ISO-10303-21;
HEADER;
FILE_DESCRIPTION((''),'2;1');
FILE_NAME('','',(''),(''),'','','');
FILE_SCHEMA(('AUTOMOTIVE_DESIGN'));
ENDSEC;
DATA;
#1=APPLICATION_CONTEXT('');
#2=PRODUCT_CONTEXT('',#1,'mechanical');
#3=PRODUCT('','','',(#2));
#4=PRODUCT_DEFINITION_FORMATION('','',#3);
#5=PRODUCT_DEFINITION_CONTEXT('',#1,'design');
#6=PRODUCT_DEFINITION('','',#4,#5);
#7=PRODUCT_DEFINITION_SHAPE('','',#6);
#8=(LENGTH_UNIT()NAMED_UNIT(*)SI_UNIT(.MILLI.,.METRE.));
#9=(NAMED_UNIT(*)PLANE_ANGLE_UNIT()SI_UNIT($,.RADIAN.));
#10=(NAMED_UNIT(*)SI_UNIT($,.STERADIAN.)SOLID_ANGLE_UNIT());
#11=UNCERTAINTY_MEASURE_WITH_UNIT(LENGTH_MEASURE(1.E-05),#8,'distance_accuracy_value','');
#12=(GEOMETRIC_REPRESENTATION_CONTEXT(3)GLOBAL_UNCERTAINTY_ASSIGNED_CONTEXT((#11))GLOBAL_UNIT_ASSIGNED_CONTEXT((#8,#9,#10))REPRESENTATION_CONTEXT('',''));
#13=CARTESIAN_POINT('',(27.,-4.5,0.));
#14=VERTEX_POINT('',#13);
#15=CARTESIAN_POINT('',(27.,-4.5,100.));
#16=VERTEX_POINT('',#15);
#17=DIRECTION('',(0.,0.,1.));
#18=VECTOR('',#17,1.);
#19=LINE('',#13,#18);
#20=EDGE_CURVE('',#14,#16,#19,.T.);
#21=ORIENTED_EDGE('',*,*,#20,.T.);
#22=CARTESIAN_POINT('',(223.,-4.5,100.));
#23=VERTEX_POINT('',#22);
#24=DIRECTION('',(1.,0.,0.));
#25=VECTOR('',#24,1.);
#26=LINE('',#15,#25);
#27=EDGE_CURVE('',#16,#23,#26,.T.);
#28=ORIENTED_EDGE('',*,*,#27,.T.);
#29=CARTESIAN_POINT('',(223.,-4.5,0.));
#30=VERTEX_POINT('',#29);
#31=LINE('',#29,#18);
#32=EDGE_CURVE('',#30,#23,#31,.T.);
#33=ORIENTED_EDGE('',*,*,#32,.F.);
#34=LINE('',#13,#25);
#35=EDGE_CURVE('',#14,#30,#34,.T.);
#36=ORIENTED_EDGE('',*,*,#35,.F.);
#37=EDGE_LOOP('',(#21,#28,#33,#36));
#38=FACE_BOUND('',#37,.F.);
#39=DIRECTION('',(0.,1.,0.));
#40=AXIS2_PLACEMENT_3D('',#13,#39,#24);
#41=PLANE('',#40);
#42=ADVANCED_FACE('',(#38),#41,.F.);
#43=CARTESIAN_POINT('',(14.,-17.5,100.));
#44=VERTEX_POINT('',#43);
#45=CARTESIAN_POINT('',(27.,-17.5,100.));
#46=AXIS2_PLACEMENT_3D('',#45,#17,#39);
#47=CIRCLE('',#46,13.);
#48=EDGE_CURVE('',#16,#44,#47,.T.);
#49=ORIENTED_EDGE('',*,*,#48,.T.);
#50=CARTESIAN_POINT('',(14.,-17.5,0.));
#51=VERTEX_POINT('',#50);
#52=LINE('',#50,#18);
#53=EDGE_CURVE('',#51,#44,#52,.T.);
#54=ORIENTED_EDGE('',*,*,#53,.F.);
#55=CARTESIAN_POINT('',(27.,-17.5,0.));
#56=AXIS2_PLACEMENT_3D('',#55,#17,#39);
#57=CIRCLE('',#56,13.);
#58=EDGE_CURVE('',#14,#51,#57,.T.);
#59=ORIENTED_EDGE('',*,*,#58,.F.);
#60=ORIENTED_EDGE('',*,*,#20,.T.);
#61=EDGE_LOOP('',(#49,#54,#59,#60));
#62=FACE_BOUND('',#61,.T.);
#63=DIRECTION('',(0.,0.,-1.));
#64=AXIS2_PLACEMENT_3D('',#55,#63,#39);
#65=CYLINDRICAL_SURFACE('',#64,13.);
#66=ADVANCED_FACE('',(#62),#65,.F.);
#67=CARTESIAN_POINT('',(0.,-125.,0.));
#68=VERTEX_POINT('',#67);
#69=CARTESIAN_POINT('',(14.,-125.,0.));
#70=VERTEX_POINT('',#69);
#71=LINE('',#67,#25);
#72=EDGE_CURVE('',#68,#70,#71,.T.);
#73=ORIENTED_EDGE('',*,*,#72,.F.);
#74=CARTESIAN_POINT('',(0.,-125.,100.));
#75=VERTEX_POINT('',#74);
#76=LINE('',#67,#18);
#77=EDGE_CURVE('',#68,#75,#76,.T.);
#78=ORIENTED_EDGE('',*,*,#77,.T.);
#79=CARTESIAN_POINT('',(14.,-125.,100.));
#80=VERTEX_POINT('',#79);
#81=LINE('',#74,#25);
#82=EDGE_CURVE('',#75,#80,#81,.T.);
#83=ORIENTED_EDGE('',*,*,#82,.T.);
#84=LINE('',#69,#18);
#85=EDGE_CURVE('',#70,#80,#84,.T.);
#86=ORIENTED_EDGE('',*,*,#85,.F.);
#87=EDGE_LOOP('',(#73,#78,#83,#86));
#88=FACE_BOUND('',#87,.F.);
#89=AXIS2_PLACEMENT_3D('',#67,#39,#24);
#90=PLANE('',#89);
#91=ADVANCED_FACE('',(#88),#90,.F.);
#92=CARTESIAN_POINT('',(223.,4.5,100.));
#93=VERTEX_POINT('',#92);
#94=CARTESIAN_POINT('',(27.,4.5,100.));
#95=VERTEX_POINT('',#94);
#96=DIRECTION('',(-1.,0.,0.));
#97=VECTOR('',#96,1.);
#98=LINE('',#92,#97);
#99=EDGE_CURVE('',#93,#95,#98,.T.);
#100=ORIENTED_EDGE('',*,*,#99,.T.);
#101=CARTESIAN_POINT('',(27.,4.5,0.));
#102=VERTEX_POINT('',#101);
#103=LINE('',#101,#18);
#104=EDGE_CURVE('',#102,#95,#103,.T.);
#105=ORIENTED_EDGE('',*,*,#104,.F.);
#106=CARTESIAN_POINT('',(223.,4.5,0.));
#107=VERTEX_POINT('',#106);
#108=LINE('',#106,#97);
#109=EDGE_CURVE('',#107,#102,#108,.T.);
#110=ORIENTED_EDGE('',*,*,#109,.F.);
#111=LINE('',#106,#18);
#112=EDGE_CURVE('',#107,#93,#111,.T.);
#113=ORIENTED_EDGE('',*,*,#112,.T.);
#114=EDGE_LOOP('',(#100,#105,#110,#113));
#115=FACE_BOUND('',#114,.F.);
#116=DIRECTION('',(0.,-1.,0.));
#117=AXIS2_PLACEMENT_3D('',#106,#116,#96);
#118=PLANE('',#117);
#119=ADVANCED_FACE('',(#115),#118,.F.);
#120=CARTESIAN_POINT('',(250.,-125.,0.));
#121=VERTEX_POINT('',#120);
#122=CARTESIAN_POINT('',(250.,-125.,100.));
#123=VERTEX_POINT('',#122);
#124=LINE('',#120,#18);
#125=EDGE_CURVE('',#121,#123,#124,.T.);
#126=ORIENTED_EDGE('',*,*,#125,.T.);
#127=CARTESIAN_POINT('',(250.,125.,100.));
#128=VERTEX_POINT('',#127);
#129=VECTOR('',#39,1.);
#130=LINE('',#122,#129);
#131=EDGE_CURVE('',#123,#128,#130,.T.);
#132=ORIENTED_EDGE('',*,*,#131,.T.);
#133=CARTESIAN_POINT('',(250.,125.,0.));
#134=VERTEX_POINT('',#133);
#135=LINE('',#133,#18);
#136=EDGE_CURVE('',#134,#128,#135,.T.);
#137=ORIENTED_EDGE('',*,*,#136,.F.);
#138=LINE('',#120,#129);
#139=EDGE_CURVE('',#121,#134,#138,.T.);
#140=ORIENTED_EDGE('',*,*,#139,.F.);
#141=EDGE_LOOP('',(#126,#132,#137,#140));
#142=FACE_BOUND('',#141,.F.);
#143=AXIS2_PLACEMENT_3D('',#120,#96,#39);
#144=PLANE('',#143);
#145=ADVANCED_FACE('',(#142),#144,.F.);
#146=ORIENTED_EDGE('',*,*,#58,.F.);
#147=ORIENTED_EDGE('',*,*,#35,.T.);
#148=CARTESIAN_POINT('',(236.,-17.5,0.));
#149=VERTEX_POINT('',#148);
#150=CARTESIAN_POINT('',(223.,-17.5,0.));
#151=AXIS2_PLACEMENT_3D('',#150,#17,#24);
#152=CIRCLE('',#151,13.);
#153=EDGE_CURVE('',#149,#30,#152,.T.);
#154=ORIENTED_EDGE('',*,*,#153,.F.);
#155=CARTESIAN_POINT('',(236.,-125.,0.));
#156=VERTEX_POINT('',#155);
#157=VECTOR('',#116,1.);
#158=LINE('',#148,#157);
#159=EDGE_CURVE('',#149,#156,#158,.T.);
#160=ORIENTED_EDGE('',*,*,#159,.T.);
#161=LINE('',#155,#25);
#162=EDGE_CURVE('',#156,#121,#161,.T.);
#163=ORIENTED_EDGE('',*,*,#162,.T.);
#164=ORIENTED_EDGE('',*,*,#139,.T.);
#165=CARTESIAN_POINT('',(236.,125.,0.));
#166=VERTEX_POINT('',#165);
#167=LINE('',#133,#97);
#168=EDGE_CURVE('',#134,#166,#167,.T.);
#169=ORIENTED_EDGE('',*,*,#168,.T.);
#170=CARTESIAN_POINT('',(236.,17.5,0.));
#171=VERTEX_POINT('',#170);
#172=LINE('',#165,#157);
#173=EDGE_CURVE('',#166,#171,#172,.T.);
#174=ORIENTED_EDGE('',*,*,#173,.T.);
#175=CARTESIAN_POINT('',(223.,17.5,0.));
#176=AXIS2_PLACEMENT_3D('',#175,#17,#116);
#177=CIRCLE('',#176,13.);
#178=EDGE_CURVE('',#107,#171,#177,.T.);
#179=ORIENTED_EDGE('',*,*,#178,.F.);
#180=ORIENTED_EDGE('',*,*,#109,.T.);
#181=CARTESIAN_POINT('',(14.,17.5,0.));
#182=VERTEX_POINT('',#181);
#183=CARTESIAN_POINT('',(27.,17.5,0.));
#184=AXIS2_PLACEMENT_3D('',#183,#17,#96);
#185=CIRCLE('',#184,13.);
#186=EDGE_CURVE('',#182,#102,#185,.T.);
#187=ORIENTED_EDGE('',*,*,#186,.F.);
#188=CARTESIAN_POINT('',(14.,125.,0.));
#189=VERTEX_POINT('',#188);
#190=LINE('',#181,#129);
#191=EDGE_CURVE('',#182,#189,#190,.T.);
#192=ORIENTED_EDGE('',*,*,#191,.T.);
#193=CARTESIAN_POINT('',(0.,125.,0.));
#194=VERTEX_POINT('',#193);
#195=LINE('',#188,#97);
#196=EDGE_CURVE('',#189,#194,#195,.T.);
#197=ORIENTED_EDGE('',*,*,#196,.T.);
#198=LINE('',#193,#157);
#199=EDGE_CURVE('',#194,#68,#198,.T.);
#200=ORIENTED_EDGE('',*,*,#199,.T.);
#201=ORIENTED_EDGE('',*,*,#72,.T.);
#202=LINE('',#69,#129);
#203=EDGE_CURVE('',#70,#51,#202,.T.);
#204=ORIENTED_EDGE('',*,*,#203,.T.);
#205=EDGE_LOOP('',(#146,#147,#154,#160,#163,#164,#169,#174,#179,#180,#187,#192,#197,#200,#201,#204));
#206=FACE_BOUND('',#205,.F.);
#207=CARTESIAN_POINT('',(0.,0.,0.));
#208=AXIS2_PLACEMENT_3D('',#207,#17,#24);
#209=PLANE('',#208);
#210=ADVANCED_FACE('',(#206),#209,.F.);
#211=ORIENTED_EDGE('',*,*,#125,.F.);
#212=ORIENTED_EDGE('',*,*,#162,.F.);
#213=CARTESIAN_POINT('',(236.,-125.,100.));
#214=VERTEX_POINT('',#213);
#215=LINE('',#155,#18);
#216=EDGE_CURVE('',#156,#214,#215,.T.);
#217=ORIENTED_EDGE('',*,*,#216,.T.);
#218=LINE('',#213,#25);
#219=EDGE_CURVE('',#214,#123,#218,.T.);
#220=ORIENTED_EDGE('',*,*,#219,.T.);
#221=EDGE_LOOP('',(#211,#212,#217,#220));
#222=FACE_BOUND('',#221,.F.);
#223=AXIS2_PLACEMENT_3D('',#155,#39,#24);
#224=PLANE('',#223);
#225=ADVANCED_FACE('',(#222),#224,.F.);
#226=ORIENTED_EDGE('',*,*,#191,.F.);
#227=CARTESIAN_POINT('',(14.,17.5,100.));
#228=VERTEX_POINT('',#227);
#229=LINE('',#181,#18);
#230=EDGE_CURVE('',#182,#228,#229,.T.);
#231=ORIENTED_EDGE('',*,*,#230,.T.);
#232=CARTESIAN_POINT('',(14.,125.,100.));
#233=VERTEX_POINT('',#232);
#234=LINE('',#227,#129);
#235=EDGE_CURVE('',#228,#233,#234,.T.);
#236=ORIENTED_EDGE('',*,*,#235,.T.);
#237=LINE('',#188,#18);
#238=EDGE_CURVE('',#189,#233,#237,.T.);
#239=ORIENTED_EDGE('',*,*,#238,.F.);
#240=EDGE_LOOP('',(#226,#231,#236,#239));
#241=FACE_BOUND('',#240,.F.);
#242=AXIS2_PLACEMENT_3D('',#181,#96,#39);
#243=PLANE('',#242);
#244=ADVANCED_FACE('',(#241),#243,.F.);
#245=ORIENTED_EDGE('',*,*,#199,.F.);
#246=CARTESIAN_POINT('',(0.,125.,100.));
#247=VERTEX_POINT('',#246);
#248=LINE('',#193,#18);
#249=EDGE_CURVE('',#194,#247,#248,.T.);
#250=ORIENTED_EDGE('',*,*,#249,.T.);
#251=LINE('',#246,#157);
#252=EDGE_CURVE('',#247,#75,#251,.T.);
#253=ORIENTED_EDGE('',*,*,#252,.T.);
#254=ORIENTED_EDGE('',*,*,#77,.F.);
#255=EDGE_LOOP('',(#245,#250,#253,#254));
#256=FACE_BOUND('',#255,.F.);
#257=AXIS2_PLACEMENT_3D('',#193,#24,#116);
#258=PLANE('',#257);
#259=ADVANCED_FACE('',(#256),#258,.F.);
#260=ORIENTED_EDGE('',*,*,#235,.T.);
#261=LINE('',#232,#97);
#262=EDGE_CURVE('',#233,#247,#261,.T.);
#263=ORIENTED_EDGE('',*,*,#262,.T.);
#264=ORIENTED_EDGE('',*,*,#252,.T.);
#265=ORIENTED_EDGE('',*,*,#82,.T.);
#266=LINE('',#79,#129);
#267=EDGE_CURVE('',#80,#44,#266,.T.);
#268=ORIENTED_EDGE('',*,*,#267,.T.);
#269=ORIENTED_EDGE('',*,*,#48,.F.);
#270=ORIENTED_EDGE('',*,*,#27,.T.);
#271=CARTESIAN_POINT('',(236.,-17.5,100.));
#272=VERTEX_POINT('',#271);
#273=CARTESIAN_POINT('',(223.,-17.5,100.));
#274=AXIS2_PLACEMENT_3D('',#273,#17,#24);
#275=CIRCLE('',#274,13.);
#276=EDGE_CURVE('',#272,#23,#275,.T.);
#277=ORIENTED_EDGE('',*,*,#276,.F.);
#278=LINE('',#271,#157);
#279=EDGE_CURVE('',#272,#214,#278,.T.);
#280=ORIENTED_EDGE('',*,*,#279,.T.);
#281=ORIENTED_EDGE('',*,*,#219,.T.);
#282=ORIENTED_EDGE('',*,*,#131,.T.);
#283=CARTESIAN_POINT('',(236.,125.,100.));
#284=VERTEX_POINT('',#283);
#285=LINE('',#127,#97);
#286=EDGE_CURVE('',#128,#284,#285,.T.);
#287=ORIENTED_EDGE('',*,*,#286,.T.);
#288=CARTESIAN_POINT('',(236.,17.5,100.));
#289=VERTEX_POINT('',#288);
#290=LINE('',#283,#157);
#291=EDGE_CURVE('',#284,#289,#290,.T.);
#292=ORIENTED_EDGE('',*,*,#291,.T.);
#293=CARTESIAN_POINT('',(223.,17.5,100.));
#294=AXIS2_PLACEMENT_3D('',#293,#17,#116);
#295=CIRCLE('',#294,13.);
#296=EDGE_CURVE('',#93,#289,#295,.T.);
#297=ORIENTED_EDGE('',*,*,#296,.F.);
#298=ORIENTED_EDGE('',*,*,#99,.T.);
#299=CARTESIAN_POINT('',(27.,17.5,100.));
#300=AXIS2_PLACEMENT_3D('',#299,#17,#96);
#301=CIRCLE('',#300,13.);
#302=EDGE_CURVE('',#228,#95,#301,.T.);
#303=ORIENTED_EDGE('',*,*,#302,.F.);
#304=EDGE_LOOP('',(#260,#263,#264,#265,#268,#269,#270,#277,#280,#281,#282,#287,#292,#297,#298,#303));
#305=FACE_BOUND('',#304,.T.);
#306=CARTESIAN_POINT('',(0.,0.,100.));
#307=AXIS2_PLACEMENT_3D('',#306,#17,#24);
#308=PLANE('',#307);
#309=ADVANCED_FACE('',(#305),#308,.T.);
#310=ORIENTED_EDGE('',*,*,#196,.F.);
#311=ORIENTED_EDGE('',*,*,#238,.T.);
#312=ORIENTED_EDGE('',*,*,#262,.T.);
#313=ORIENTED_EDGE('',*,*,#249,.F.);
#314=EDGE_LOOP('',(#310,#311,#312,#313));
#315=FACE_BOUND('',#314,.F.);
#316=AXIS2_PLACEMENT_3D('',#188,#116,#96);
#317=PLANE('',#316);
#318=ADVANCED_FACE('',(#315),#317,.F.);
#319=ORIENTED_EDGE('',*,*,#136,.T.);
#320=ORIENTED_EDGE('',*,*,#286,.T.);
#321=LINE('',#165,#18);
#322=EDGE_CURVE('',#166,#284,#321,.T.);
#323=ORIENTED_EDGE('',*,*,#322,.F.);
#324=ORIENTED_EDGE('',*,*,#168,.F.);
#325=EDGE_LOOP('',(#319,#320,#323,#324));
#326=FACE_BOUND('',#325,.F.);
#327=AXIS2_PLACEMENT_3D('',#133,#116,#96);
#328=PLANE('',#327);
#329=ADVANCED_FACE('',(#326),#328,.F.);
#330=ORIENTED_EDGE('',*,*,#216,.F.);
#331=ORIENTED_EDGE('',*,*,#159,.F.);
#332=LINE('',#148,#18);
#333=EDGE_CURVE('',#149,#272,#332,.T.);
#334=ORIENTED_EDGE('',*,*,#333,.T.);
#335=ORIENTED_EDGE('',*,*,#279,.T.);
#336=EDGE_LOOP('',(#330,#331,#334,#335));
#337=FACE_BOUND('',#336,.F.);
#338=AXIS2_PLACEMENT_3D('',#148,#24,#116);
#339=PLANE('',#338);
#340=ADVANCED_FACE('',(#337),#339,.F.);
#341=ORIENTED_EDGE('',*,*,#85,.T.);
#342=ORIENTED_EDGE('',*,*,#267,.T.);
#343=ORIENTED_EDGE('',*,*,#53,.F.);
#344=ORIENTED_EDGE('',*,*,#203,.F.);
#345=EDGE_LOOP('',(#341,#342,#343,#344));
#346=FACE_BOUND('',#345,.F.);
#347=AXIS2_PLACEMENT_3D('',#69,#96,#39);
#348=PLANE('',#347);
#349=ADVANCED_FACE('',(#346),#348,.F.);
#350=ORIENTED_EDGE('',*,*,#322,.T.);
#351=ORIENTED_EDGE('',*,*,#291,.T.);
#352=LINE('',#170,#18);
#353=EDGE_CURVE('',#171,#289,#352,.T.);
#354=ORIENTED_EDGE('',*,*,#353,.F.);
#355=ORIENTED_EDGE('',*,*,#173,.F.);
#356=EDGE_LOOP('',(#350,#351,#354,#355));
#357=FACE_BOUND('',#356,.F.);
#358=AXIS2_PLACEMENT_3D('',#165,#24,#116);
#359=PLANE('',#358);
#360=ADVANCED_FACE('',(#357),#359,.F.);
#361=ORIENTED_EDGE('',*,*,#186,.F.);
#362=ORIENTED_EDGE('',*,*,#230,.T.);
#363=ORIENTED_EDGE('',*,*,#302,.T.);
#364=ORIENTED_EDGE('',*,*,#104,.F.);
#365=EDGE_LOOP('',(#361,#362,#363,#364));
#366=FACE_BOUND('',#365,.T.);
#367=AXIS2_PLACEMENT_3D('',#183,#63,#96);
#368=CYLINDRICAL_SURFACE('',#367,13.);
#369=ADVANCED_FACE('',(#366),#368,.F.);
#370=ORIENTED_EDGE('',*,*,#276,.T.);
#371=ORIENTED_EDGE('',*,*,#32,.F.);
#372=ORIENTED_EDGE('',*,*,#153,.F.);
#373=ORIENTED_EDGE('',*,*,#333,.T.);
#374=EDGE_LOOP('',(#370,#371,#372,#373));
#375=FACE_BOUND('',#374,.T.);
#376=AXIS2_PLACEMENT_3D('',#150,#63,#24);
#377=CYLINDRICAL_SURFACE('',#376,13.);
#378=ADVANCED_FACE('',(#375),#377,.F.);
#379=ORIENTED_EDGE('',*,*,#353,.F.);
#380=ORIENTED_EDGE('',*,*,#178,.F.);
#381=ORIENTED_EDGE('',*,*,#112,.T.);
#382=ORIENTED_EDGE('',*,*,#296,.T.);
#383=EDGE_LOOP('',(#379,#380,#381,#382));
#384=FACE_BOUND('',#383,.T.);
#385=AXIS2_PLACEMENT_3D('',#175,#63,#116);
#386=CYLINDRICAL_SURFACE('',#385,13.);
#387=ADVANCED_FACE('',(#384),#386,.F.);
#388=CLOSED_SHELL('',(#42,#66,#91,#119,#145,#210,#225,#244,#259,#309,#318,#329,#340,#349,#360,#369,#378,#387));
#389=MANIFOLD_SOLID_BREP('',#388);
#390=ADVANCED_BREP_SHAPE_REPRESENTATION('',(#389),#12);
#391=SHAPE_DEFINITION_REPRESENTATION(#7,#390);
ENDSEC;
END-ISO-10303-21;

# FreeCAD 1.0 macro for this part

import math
import FreeCAD as App
import Part
import Sketcher
from FreeCAD import Vector
Q = App.Units.Quantity

doc = App.newDocument("Part")
params = doc.addObject("Spreadsheet::Sheet", "Params")
for row, (alias, value) in enumerate([
    ("sketch1_radius", "13 mm"),
    ("sketch1_width", "14 mm"),
    ("sketch1_width2", "196 mm"),
    ("sketch1_height", "250 mm"),
    ("sketch1_height2", "107.5 mm"),
    ("pad1_length", "100 mm"),
], start=1):
    params.set(f"A{row}", alias)
    params.set(f"B{row}", "=" + value)
    params.setAlias(f"B{row}", alias)

body = doc.addObject("PartDesign::Body", "Body")

# Sketch on XY plane
sketch1 = doc.addObject("Sketcher::SketchObject", "Sketch")
body.addObject(sketch1)
sketch1.AttachmentSupport = (doc.XY_Plane, [""])
sketch1.MapMode = "FlatFace"
sketch1.addGeometry(Part.LineSegment(Vector(14, 125, 0), Vector(0, 125, 0)), False)
sketch1.addGeometry(Part.LineSegment(Vector(0, 125, 0), Vector(0, -125, 0)), False)
sketch1.addGeometry(Part.LineSegment(Vector(0, -125, 0), Vector(14, -125, 0)), False)
sketch1.addGeometry(Part.LineSegment(Vector(14, -125, 0), Vector(14, -18, 0)), False)
sketch1.addGeometry(Part.ArcOfCircle(Part.Circle(Vector(27, -18, 0), Vector(0, 0, 1), 13), math.radians(90), math.radians(180)), False)
sketch1.addGeometry(Part.LineSegment(Vector(27, -4, 0), Vector(223, -4, 0)), False)
sketch1.addGeometry(Part.ArcOfCircle(Part.Circle(Vector(223, -18, 0), Vector(0, 0, 1), 13), math.radians(0), math.radians(90)), False)
sketch1.addGeometry(Part.LineSegment(Vector(236, -18, 0), Vector(236, -125, 0)), False)
sketch1.addGeometry(Part.LineSegment(Vector(236, -125, 0), Vector(250, -125, 0)), False)
sketch1.addGeometry(Part.LineSegment(Vector(250, -125, 0), Vector(250, 125, 0)), False)
sketch1.addGeometry(Part.LineSegment(Vector(250, 125, 0), Vector(236, 125, 0)), False)
sketch1.addGeometry(Part.LineSegment(Vector(236, 125, 0), Vector(236, 18, 0)), False)
sketch1.addGeometry(Part.ArcOfCircle(Part.Circle(Vector(223, 18, 0), Vector(0, 0, 1), 13), math.radians(-90), math.radians(0)), False)
sketch1.addGeometry(Part.LineSegment(Vector(223, 4, 0), Vector(27, 4, 0)), False)
sketch1.addGeometry(Part.ArcOfCircle(Part.Circle(Vector(27, 18, 0), Vector(0, 0, 1), 13), math.radians(180), math.radians(270)), False)
sketch1.addGeometry(Part.LineSegment(Vector(14, 18, 0), Vector(14, 125, 0)), False)
sketch1.addConstraint(Sketcher.Constraint("Coincident", 0, 2, 1, 1))
sketch1.addConstraint(Sketcher.Constraint("Coincident", 1, 2, 2, 1))
sketch1.addConstraint(Sketcher.Constraint("Coincident", 2, 2, 3, 1))
sketch1.addConstraint(Sketcher.Constraint("Tangent", 3, 2, 4, 2))
sketch1.addConstraint(Sketcher.Constraint("Tangent", 4, 1, 5, 1))
sketch1.addConstraint(Sketcher.Constraint("Tangent", 5, 2, 6, 2))
sketch1.addConstraint(Sketcher.Constraint("Tangent", 6, 1, 7, 1))
sketch1.addConstraint(Sketcher.Constraint("Coincident", 7, 2, 8, 1))
sketch1.addConstraint(Sketcher.Constraint("Coincident", 8, 2, 9, 1))
sketch1.addConstraint(Sketcher.Constraint("Coincident", 9, 2, 10, 1))
sketch1.addConstraint(Sketcher.Constraint("Coincident", 10, 2, 11, 1))
sketch1.addConstraint(Sketcher.Constraint("Tangent", 11, 2, 12, 2))
sketch1.addConstraint(Sketcher.Constraint("Tangent", 12, 1, 13, 1))
sketch1.addConstraint(Sketcher.Constraint("Tangent", 13, 2, 14, 2))
sketch1.addConstraint(Sketcher.Constraint("Tangent", 14, 1, 15, 1))
sketch1.addConstraint(Sketcher.Constraint("Coincident", 15, 2, 0, 1))
sketch1.addConstraint(Sketcher.Constraint("Horizontal", 0))
sketch1.addConstraint(Sketcher.Constraint("Vertical", 1))
sketch1.addConstraint(Sketcher.Constraint("Horizontal", 2))
sketch1.addConstraint(Sketcher.Constraint("Vertical", 3))
sketch1.addConstraint(Sketcher.Constraint("Horizontal", 5))
sketch1.addConstraint(Sketcher.Constraint("Vertical", 7))
sketch1.addConstraint(Sketcher.Constraint("Horizontal", 8))
sketch1.addConstraint(Sketcher.Constraint("Vertical", 9))
sketch1.addConstraint(Sketcher.Constraint("Horizontal", 10))
sketch1.addConstraint(Sketcher.Constraint("Vertical", 11))
sketch1.addConstraint(Sketcher.Constraint("Horizontal", 13))
sketch1.addConstraint(Sketcher.Constraint("Vertical", 15))
sketch1.addConstraint(Sketcher.Constraint("Equal", 4, 6))
sketch1.addConstraint(Sketcher.Constraint("Equal", 6, 12))
sketch1.addConstraint(Sketcher.Constraint("Equal", 12, 14))
sketch1.addConstraint(Sketcher.Constraint("Symmetric", 0, 2, 1, 2, -1, 1))
sketch1.addConstraint(Sketcher.Constraint("Symmetric", 6, 3, 12, 3, -1))
sketch1.addConstraint(Sketcher.Constraint("Horizontal", 2, 2, 7, 2))
sketch1.addConstraint(Sketcher.Constraint("Horizontal", 0, 2, 9, 2))
sketch1.addConstraint(Sketcher.Constraint("Vertical", 4, 3, 14, 3))
sketch1.addConstraint(Sketcher.Constraint("Equal", 2, 8))
sketch1.addConstraint(Sketcher.Constraint("Radius", 4, Q("13 mm")))
sketch1.addConstraint(Sketcher.Constraint("DistanceX", 0, 2, 0, 1, Q("14 mm")))
sketch1.addConstraint(Sketcher.Constraint("DistanceX", 5, 1, 5, 2, Q("196 mm")))
sketch1.addConstraint(Sketcher.Constraint("DistanceY", 1, 2, 1, 1, Q("250 mm")))
sketch1.addConstraint(Sketcher.Constraint("DistanceY", 3, 1, 3, 2, Q("107.5 mm")))
sketch1.setExpression("Constraints[37]", "Params.sketch1_radius")
sketch1.setExpression("Constraints[38]", "Params.sketch1_width")
sketch1.setExpression("Constraints[39]", "Params.sketch1_width2")
sketch1.setExpression("Constraints[40]", "Params.sketch1_height")
sketch1.setExpression("Constraints[41]", "Params.sketch1_height2")
pad1 = doc.addObject("PartDesign::Pad", "Pad")
body.addObject(pad1)
pad1.Profile = sketch1
pad1.setExpression("Length", "Params.pad1_length")

doc.recompute()
